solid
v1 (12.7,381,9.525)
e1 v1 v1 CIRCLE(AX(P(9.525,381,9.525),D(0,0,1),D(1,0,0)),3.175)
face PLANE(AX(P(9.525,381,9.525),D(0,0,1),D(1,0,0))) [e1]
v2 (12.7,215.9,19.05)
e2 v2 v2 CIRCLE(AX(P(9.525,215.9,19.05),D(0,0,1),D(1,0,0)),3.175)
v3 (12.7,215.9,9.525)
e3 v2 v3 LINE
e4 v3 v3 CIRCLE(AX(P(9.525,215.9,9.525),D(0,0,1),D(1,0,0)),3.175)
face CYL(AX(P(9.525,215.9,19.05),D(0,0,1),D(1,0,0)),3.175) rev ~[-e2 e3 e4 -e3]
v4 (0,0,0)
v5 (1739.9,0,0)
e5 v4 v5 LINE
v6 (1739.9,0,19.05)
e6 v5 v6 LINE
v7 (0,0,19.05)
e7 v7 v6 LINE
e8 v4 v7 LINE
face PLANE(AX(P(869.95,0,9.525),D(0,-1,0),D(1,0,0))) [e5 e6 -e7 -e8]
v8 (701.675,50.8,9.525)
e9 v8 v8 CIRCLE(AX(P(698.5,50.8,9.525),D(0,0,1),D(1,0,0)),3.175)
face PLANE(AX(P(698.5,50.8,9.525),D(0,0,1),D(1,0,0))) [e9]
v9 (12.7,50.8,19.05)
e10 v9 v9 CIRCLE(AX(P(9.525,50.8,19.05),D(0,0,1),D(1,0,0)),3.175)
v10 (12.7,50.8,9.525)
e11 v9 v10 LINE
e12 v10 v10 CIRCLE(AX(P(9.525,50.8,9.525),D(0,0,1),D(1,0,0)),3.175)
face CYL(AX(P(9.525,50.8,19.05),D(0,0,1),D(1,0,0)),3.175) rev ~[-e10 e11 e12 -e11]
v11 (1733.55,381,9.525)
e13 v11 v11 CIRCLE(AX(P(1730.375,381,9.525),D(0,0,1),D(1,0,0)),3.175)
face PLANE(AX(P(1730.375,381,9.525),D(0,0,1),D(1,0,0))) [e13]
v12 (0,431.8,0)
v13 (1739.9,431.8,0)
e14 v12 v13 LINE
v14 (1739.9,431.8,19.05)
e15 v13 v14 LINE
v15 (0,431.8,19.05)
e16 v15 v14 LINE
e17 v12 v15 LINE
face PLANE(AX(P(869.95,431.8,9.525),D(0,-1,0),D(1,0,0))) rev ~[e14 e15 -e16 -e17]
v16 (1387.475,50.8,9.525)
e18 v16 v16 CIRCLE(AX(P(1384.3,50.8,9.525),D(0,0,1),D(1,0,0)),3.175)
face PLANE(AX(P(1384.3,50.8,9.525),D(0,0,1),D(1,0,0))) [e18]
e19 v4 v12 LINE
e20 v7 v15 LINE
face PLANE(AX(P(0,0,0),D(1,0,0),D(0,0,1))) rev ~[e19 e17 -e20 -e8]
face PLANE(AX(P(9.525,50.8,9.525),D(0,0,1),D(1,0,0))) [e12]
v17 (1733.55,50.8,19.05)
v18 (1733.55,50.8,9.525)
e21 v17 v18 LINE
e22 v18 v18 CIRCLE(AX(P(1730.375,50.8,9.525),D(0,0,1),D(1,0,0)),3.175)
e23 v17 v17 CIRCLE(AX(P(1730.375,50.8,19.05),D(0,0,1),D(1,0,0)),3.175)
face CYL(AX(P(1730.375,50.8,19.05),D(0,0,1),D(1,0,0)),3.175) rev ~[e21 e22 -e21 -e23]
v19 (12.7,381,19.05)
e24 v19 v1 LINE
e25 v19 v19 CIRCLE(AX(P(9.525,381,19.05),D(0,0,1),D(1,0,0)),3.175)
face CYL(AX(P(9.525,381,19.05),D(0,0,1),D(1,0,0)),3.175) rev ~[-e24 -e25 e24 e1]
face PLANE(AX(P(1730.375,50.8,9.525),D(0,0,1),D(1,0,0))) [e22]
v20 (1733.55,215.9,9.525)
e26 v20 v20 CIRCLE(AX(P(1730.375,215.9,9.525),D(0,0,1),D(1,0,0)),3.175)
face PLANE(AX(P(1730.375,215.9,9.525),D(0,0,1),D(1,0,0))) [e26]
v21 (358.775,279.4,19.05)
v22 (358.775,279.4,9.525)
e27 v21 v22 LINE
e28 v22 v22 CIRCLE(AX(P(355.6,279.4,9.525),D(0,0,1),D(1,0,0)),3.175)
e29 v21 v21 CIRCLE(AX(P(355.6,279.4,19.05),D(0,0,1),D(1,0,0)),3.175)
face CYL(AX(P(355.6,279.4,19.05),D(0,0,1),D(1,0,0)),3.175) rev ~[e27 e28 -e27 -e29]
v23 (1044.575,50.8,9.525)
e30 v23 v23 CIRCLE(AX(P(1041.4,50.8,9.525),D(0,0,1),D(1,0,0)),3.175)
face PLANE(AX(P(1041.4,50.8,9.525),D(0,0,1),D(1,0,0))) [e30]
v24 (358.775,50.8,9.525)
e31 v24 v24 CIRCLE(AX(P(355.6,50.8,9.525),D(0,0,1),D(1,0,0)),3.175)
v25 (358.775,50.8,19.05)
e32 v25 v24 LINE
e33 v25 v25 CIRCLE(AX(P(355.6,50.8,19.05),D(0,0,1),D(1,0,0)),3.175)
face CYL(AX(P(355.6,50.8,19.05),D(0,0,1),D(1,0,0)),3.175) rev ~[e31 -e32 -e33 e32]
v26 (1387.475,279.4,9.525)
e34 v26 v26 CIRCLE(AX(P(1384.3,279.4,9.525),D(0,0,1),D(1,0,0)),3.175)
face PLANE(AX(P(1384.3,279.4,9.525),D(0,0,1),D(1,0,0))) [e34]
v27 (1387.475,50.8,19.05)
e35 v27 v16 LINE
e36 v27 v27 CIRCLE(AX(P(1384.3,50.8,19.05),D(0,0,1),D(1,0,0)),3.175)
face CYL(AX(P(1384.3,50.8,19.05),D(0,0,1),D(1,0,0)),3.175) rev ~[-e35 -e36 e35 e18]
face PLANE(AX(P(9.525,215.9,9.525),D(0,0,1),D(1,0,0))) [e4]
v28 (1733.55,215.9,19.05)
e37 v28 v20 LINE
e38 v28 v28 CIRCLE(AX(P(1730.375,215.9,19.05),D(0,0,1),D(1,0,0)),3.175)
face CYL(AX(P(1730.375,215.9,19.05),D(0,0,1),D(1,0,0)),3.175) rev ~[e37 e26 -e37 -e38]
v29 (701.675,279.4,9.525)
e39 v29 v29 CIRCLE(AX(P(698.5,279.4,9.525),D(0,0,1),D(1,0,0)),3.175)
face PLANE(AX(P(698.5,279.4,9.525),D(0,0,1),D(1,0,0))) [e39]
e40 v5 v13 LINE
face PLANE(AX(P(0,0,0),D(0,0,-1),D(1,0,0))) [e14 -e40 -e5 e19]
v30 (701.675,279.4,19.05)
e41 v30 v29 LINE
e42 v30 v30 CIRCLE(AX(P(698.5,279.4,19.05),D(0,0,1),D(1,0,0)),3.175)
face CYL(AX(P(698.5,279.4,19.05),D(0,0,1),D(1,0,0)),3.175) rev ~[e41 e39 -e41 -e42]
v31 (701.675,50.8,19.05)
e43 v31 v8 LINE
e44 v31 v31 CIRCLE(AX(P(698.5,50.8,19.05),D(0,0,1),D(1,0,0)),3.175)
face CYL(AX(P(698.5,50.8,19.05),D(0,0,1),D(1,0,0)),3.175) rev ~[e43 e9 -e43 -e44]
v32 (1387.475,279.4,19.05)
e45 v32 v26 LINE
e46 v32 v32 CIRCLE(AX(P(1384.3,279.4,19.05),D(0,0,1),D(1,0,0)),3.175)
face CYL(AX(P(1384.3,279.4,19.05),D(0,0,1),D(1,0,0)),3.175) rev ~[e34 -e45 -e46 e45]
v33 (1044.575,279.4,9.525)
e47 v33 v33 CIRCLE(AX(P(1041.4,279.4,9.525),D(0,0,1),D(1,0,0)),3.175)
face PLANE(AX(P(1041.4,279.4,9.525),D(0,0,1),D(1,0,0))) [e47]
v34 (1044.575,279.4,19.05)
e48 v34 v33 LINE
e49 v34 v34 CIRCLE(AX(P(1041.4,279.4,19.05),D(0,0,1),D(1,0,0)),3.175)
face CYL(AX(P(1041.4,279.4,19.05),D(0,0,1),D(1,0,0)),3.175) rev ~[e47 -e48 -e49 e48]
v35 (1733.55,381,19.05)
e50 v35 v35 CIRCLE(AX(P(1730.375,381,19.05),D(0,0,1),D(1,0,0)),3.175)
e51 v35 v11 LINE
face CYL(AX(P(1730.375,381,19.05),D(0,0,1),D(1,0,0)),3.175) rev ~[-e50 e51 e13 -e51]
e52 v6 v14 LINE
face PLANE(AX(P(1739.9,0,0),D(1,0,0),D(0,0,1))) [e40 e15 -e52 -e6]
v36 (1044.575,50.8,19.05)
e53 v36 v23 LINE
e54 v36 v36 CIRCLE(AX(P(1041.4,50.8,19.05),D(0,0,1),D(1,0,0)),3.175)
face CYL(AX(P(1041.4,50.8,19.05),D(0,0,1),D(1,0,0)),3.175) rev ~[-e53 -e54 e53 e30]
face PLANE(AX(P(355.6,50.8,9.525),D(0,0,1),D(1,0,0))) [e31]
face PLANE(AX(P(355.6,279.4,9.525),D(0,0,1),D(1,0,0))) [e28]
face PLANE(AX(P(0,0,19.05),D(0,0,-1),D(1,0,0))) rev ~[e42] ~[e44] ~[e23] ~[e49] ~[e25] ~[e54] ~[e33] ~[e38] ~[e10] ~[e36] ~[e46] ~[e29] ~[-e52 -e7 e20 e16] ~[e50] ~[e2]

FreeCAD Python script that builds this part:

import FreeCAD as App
import Part
import Sketcher

V = App.Vector
Q = App.Units.Quantity

doc = App.newDocument("Part")
body = doc.addObject("PartDesign::Body", "Body")

# Sketch on XZ plane
sketch1 = body.newObject("Sketcher::SketchObject", "Sketch")
sketch1.AttachmentSupport = (doc.getObject("XZ_Plane"), [""])
sketch1.MapMode = "FlatFace"
sketch1.addGeometry([
    Part.LineSegment(V(0, 19.05, 0), V(0, 0, 0)),
    Part.LineSegment(V(0, 0, 0), V(1739.9, 0, 0)),
    Part.LineSegment(V(1739.9, 0, 0), V(1739.9, 19.05, 0)),
    Part.LineSegment(V(1739.9, 19.05, 0), V(0, 19.05, 0)),
], False)
sketch1.addConstraint([
    Sketcher.Constraint("Coincident", 0, 2, 1, 1),
    Sketcher.Constraint("Coincident", 1, 2, 2, 1),
    Sketcher.Constraint("Coincident", 2, 2, 3, 1),
    Sketcher.Constraint("Coincident", 3, 2, 0, 1),
    Sketcher.Constraint("Vertical", 0),
    Sketcher.Constraint("Horizontal", 1),
    Sketcher.Constraint("Vertical", 2),
    Sketcher.Constraint("Horizontal", 3),
    Sketcher.Constraint("Coincident", 0, 2, -1, 1),
    Sketcher.Constraint("DistanceX", 1, 1, 1, 2, Q("68.5 in")),
    Sketcher.Constraint("DistanceY", 0, 2, 0, 1, Q("0.75 in")),
])
pad1 = body.newObject("PartDesign::Pad", "Pad")
pad1.Profile = sketch1
pad1.Length = Q("17 in")
pad1.Reversed = True

# Sketch on XY plane
sketch2 = body.newObject("Sketcher::SketchObject", "Sketch001")
sketch2.AttachmentSupport = (doc.getObject("XY_Plane"), [""])
sketch2.MapMode = "FlatFace"
sketch2.AttachmentOffset = App.Placement(V(0, 0, 0.75 * 25.4), App.Rotation())
sketch2.addGeometry([
    Part.Circle(V(9.525, 381, 0), V(0, 0, 1), 3.175),  # 0
    Part.Circle(V(9.525, 215.9, 0), V(0, 0, 1), 3.175),  # 1
    Part.Circle(V(9.525, 50.8, 0), V(0, 0, 1), 3.175),  # 2
    Part.Circle(V(1730.375, 381, 0), V(0, 0, 1), 3.175),  # 3
    Part.Circle(V(1730.375, 215.9, 0), V(0, 0, 1), 3.175),  # 4
    Part.Circle(V(1730.375, 50.8, 0), V(0, 0, 1), 3.175),  # 5
    Part.Circle(V(355.6, 50.8, 0), V(0, 0, 1), 3.175),  # 6
    Part.Circle(V(355.6, 279.4, 0), V(0, 0, 1), 3.175),  # 7
    Part.Circle(V(1041.4, 50.8, 0), V(0, 0, 1), 3.175),  # 8
    Part.Circle(V(1384.3, 279.4, 0), V(0, 0, 1), 3.175),  # 9
    Part.Circle(V(1041.4, 279.4, 0), V(0, 0, 1), 3.175),  # 10
    Part.Circle(V(698.5, 50.8, 0), V(0, 0, 1), 3.175),  # 11
    Part.Circle(V(698.5, 279.4, 0), V(0, 0, 1), 3.175),  # 12
    Part.Circle(V(1384.3, 50.8, 0), V(0, 0, 1), 3.175),  # 13
], False)
sketch2.addConstraint([
    Sketcher.Constraint("Equal", 0, 1),
    Sketcher.Constraint("Equal", 1, 2),
    Sketcher.Constraint("Equal", 2, 3),
    Sketcher.Constraint("Equal", 3, 4),
    Sketcher.Constraint("Equal", 4, 5),
    Sketcher.Constraint("Equal", 5, 6),
    Sketcher.Constraint("Equal", 6, 7),
    Sketcher.Constraint("Equal", 7, 8),
    Sketcher.Constraint("Equal", 8, 9),
    Sketcher.Constraint("Equal", 9, 10),
    Sketcher.Constraint("Equal", 10, 11),
    Sketcher.Constraint("Equal", 11, 12),
    Sketcher.Constraint("Equal", 12, 13),
    Sketcher.Constraint("Horizontal", 0, 3, 3, 3),
    Sketcher.Constraint("Horizontal", 1, 3, 4, 3),
    Sketcher.Constraint("Horizontal", 2, 3, 5, 3),
    Sketcher.Constraint("Horizontal", 5, 3, 6, 3),
    Sketcher.Constraint("Horizontal", 6, 3, 8, 3),
    Sketcher.Constraint("Horizontal", 7, 3, 9, 3),
    Sketcher.Constraint("Horizontal", 9, 3, 10, 3),
    Sketcher.Constraint("Horizontal", 8, 3, 11, 3),
    Sketcher.Constraint("Horizontal", 10, 3, 12, 3),
    Sketcher.Constraint("Horizontal", 11, 3, 13, 3),
    Sketcher.Constraint("Vertical", 0, 3, 1, 3),
    Sketcher.Constraint("Vertical", 1, 3, 2, 3),
    Sketcher.Constraint("Vertical", 3, 3, 4, 3),
    Sketcher.Constraint("Vertical", 4, 3, 5, 3),
    Sketcher.Constraint("Vertical", 6, 3, 7, 3),
    Sketcher.Constraint("Vertical", 8, 3, 10, 3),
    Sketcher.Constraint("Vertical", 11, 3, 12, 3),
    Sketcher.Constraint("Vertical", 9, 3, 13, 3),
    Sketcher.Constraint("Diameter", 0, Q("0.25 in")),
    Sketcher.Constraint("DistanceY", -1, 1, 0, 3, Q("15 in")),
    Sketcher.Constraint("DistanceY", -1, 1, 2, 3, Q("2 in")),
    Sketcher.Constraint("DistanceX", -1, 1, 6, 3, Q("14 in")),
    Sketcher.Constraint("DistanceY", -1, 1, 7, 3, Q("11 in")),
    Sketcher.Constraint("DistanceX", -1, 1, 8, 3, Q("41 in")),
    Sketcher.Constraint("DistanceY", -1, 1, 1, 3, Q("8.5 in")),
    Sketcher.Constraint("DistanceX", -1, 1, 9, 3, Q("54.5 in")),
    Sketcher.Constraint("DistanceX", -1, 1, 11, 3, Q("27.5 in")),
    Sketcher.Constraint("DistanceX", 0, 3, 3, 3, Q("67.75 in")),
    Sketcher.Constraint("DistanceX", -1, 1, 0, 3, Q("0.375 in")),
])
pocket1 = body.newObject("PartDesign::Pocket", "Pocket")
pocket1.Profile = sketch2
pocket1.Length = Q("0.375 in")

doc.recompute()
